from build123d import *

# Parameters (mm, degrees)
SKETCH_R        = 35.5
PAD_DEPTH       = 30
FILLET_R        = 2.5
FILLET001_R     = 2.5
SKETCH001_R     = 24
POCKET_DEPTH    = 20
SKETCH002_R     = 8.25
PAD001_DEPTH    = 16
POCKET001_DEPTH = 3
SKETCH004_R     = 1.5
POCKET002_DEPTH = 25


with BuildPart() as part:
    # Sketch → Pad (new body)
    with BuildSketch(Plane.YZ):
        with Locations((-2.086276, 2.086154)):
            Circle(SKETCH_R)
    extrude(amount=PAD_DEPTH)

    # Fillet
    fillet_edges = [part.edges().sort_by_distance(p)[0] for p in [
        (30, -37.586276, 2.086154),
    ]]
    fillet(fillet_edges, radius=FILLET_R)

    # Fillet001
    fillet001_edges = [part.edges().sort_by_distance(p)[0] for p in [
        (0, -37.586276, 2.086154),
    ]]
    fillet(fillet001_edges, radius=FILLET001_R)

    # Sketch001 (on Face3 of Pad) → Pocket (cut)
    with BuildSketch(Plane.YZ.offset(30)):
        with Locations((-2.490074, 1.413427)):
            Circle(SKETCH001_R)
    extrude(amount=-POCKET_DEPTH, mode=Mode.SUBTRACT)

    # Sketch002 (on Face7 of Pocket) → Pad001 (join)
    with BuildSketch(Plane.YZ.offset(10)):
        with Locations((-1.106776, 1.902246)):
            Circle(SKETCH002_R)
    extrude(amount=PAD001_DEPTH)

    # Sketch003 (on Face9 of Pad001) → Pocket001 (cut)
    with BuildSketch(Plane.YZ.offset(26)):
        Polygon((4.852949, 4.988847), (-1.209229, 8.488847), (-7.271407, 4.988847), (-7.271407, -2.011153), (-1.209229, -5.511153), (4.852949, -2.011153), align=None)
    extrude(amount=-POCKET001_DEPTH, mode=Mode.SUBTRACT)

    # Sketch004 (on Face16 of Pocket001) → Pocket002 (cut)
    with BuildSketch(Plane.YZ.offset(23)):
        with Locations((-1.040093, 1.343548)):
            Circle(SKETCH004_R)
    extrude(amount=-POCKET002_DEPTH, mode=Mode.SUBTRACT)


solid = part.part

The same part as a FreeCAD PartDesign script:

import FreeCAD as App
import Part
import Sketcher
Q = App.Units.Quantity


def edges_at(feature, points):
    """Names of the edges that pass closest to the given points."""
    edges = feature.Shape.Edges
    near = lambda p: min(range(len(edges)), key=lambda i: edges[i].distToShape(Part.Vertex(*p))[0])
    return sorted({f"Edge{near(p) + 1}" for p in points})

doc = App.newDocument("Part")
params = doc.addObject("Spreadsheet::Sheet", "Params")
for row, (alias, value) in enumerate([
    ("sketch1_diameter", "71 mm"),
    ("pad1_length", "30 mm"),
    ("fillet_radius", "2.5 mm"),
    ("fillet2_radius", "2.5 mm"),
    ("sketch2_diameter", "48 mm"),
    ("pocket1_length", "20 mm"),
    ("sketch3_diameter", "16.5 mm"),
    ("pad2_length", "16 mm"),
    ("sketch4_height", "7 mm"),
    ("sketch4_length", "7 mm"),
    ("pocket2_length", "3 mm"),
    ("sketch5_diameter", "3 mm"),
    ("pocket3_length", "25 mm"),
], start=1):
    params.set(f"A{row}", alias)
    params.set(f"B{row}", "=" + value)
    params.setAlias(f"B{row}", alias)

body = doc.addObject("PartDesign::Body", "Body")

sketch1 = body.newObject("Sketcher::SketchObject", "Sketch")
sketch1.AttachmentSupport = (doc.getObject("YZ_Plane"), [""])
sketch1.MapMode = "FlatFace"
sketch1.addGeometry(Part.Circle(App.Vector(-2, 2, 0), App.Vector(0, 0, 1), 36), False)
sketch1.addConstraint([
    Sketcher.Constraint("Diameter", 0, Q("71 mm")),
    Sketcher.Constraint("DistanceX", 0, 3, -1, 1, Q("2.086276 mm")),
    Sketcher.Constraint("DistanceY", -1, 1, 0, 3, Q("2.086154 mm")),
])
sketch1.setExpression("Constraints[0]", "Params.sketch1_diameter")
pad1 = body.newObject("PartDesign::Pad", "Pad")
pad1.Profile = sketch1
pad1.setExpression("Length", "Params.pad1_length")
doc.recompute()

fillet = body.newObject("PartDesign::Fillet", "Fillet")
fillet.Base = (pad1, edges_at(pad1, [(30, -37.586, 2.086)]))
fillet.setExpression("Radius", "Params.fillet_radius")
doc.recompute()

fillet2 = body.newObject("PartDesign::Fillet", "Fillet001")
fillet2.Base = (fillet, edges_at(fillet, [(0, -37.586, 2.086)]))
fillet2.setExpression("Radius", "Params.fillet2_radius")

sketch2 = body.newObject("Sketcher::SketchObject", "Sketch001")
sketch2.AttachmentSupport = (doc.getObject("YZ_Plane"), [""])
sketch2.MapMode = "FlatFace"
sketch2.AttachmentOffset = App.Placement(App.Vector(0, 0, 30), App.Rotation())
sketch2.addGeometry(Part.Circle(App.Vector(-2, 1, 0), App.Vector(0, 0, 1), 24), False)
sketch2.addConstraint([
    Sketcher.Constraint("Diameter", 0, Q("48 mm")),
    Sketcher.Constraint("DistanceX", 0, 3, -1, 1, Q("2.490074 mm")),
    Sketcher.Constraint("DistanceY", -1, 1, 0, 3, Q("1.413427 mm")),
])
sketch2.setExpression("Constraints[0]", "Params.sketch2_diameter")
pocket1 = body.newObject("PartDesign::Pocket", "Pocket")
pocket1.Profile = sketch2
pocket1.setExpression("Length", "Params.pocket1_length")

sketch3 = body.newObject("Sketcher::SketchObject", "Sketch002")
sketch3.AttachmentSupport = (doc.getObject("YZ_Plane"), [""])
sketch3.MapMode = "FlatFace"
sketch3.AttachmentOffset = App.Placement(App.Vector(0, 0, 10), App.Rotation())
sketch3.addGeometry(Part.Circle(App.Vector(-1, 2, 0), App.Vector(0, 0, 1), 8), False)
sketch3.addConstraint([
    Sketcher.Constraint("Diameter", 0, Q("16.5 mm")),
    Sketcher.Constraint("DistanceX", 0, 3, -1, 1, Q("1.106776 mm")),
    Sketcher.Constraint("DistanceY", -1, 1, 0, 3, Q("1.902246 mm")),
])
sketch3.setExpression("Constraints[0]", "Params.sketch3_diameter")
pad2 = body.newObject("PartDesign::Pad", "Pad001")
pad2.Profile = sketch3
pad2.setExpression("Length", "Params.pad2_length")

sketch4 = body.newObject("Sketcher::SketchObject", "Sketch003")
sketch4.AttachmentSupport = (doc.getObject("YZ_Plane"), [""])
sketch4.MapMode = "FlatFace"
sketch4.AttachmentOffset = App.Placement(App.Vector(0, 0, 26), App.Rotation())
sketch4.addGeometry([
    Part.LineSegment(App.Vector(5, 5, 0), App.Vector(-1, 8, 0)),
    Part.LineSegment(App.Vector(-1, 8, 0), App.Vector(-7, 5, 0)),
    Part.LineSegment(App.Vector(-7, 5, 0), App.Vector(-7, -2, 0)),
    Part.LineSegment(App.Vector(-7, -2, 0), App.Vector(-1, -6, 0)),
    Part.LineSegment(App.Vector(-1, -6, 0), App.Vector(5, -2, 0)),
    Part.LineSegment(App.Vector(5, -2, 0), App.Vector(5, 5, 0)),
], False)
sketch4.addConstraint([
    Sketcher.Constraint("Coincident", 0, 2, 1, 1),
    Sketcher.Constraint("Coincident", 1, 2, 2, 1),
    Sketcher.Constraint("Coincident", 2, 2, 3, 1),
    Sketcher.Constraint("Coincident", 3, 2, 4, 1),
    Sketcher.Constraint("Coincident", 4, 2, 5, 1),
    Sketcher.Constraint("Coincident", 5, 2, 0, 1),
    Sketcher.Constraint("Vertical", 2),
    Sketcher.Constraint("Vertical", 5),
    Sketcher.Constraint("Parallel", 0, 3),
    Sketcher.Constraint("Parallel", 1, 4),
    Sketcher.Constraint("Horizontal", 2, 2, 4, 2),
    Sketcher.Constraint("Horizontal", 1, 2, 5, 2),
    Sketcher.Constraint("Vertical", 0, 2, 3, 2),
    Sketcher.Constraint("DistanceY", 2, 2, 2, 1, Q("7 mm")),
    Sketcher.Constraint("Angle", 0, Q("150.000001 deg")),
    Sketcher.Constraint("Distance", 0, Q("7 mm")),
    Sketcher.Constraint("DistanceX", 0, 2, -1, 1, Q("1.209229 mm")),
    Sketcher.Constraint("DistanceY", -1, 1, 0, 2, Q("8.488847 mm")),
])
sketch4.setExpression("Constraints[13]", "Params.sketch4_height")
sketch4.setExpression("Constraints[15]", "Params.sketch4_length")
pocket2 = body.newObject("PartDesign::Pocket", "Pocket001")
pocket2.Profile = sketch4
pocket2.setExpression("Length", "Params.pocket2_length")

sketch5 = body.newObject("Sketcher::SketchObject", "Sketch004")
sketch5.AttachmentSupport = (doc.getObject("YZ_Plane"), [""])
sketch5.MapMode = "FlatFace"
sketch5.AttachmentOffset = App.Placement(App.Vector(0, 0, 23), App.Rotation())
sketch5.addGeometry(Part.Circle(App.Vector(-1, 1.3, 0), App.Vector(0, 0, 1), 1.5), False)
sketch5.addConstraint([
    Sketcher.Constraint("Diameter", 0, Q("3 mm")),
    Sketcher.Constraint("DistanceX", 0, 3, -1, 1, Q("1.040093 mm")),
    Sketcher.Constraint("DistanceY", -1, 1, 0, 3, Q("1.343548 mm")),
])
sketch5.setExpression("Constraints[0]", "Params.sketch5_diameter")
pocket3 = body.newObject("PartDesign::Pocket", "Pocket002")
pocket3.Profile = sketch5
pocket3.setExpression("Length", "Params.pocket3_length")

doc.recompute()
